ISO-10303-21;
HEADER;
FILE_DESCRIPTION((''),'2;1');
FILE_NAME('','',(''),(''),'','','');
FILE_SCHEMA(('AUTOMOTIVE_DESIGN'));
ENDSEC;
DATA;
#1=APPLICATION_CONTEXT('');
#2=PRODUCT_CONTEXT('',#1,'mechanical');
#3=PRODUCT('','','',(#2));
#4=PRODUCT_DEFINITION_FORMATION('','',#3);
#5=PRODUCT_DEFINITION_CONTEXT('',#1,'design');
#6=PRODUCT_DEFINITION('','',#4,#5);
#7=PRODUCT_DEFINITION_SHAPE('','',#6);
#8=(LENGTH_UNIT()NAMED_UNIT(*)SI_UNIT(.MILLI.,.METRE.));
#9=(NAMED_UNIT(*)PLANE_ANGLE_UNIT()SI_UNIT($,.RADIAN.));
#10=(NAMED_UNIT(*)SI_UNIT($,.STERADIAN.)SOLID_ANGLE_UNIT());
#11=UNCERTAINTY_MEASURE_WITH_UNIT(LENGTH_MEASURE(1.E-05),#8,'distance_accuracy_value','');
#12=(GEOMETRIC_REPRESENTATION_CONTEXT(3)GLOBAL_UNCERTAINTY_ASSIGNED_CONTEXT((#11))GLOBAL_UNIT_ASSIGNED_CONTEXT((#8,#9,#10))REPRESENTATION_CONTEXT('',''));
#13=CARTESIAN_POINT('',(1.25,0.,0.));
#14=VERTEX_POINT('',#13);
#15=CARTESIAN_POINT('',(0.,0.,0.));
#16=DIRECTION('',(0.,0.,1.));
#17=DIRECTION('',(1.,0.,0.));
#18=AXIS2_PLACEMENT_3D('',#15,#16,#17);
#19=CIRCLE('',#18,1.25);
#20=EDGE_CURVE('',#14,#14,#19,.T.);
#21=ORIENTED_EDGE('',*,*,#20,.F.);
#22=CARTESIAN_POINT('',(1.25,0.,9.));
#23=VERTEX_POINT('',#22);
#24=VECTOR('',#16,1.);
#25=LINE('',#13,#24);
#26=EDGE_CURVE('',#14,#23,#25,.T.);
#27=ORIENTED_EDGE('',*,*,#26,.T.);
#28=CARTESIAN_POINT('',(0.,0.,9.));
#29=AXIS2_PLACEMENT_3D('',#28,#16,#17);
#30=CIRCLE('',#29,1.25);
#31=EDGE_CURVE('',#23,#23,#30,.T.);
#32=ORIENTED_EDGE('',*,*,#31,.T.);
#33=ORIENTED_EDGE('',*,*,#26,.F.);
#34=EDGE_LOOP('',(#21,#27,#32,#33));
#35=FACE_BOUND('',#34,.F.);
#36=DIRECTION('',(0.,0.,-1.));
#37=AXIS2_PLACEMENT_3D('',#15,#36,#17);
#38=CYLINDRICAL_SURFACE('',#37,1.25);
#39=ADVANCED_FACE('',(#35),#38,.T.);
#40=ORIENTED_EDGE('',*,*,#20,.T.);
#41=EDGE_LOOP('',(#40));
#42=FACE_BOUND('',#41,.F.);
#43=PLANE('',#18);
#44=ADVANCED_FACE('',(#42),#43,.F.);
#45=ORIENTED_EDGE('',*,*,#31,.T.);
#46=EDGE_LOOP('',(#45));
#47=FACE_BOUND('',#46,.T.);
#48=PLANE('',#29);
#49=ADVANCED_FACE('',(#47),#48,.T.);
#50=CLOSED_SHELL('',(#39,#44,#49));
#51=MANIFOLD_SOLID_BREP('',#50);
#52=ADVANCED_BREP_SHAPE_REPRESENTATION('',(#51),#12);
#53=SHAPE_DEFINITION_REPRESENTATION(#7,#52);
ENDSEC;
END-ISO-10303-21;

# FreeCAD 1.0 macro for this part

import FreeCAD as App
import Part
import Sketcher
from FreeCAD import Vector
Q = App.Units.Quantity

doc = App.newDocument("Part")
params = doc.addObject("Spreadsheet::Sheet", "Params")
for row, (alias, value) in enumerate([
    ("sketch1_diameter", "2.5 mm"),
    ("pad1_length", "9 mm"),
], start=1):
    params.set(f"A{row}", alias)
    params.set(f"B{row}", "=" + value)
    params.setAlias(f"B{row}", alias)

body = doc.addObject("PartDesign::Body", "Body")

# Sketch on XY plane
sketch1 = body.newObject("Sketcher::SketchObject", "Sketch")
sketch1.AttachmentSupport = (doc.getObject("XY_Plane"), [""])
sketch1.MapMode = "FlatFace"
sketch1.addGeometry(Part.Circle(Vector(0, 0, 0), Vector(0, 0, 1), 1.25), False)
sketch1.addConstraint(Sketcher.Constraint("Coincident", 0, 3, -1, 1))
sketch1.addConstraint(Sketcher.Constraint("Diameter", 0, Q("2.5 mm")))
sketch1.setExpression("Constraints[1]", "Params.sketch1_diameter")
pad1 = body.newObject("PartDesign::Pad", "Pad")
pad1.Profile = sketch1
pad1.setExpression("Length", "Params.pad1_length")

doc.recompute()
